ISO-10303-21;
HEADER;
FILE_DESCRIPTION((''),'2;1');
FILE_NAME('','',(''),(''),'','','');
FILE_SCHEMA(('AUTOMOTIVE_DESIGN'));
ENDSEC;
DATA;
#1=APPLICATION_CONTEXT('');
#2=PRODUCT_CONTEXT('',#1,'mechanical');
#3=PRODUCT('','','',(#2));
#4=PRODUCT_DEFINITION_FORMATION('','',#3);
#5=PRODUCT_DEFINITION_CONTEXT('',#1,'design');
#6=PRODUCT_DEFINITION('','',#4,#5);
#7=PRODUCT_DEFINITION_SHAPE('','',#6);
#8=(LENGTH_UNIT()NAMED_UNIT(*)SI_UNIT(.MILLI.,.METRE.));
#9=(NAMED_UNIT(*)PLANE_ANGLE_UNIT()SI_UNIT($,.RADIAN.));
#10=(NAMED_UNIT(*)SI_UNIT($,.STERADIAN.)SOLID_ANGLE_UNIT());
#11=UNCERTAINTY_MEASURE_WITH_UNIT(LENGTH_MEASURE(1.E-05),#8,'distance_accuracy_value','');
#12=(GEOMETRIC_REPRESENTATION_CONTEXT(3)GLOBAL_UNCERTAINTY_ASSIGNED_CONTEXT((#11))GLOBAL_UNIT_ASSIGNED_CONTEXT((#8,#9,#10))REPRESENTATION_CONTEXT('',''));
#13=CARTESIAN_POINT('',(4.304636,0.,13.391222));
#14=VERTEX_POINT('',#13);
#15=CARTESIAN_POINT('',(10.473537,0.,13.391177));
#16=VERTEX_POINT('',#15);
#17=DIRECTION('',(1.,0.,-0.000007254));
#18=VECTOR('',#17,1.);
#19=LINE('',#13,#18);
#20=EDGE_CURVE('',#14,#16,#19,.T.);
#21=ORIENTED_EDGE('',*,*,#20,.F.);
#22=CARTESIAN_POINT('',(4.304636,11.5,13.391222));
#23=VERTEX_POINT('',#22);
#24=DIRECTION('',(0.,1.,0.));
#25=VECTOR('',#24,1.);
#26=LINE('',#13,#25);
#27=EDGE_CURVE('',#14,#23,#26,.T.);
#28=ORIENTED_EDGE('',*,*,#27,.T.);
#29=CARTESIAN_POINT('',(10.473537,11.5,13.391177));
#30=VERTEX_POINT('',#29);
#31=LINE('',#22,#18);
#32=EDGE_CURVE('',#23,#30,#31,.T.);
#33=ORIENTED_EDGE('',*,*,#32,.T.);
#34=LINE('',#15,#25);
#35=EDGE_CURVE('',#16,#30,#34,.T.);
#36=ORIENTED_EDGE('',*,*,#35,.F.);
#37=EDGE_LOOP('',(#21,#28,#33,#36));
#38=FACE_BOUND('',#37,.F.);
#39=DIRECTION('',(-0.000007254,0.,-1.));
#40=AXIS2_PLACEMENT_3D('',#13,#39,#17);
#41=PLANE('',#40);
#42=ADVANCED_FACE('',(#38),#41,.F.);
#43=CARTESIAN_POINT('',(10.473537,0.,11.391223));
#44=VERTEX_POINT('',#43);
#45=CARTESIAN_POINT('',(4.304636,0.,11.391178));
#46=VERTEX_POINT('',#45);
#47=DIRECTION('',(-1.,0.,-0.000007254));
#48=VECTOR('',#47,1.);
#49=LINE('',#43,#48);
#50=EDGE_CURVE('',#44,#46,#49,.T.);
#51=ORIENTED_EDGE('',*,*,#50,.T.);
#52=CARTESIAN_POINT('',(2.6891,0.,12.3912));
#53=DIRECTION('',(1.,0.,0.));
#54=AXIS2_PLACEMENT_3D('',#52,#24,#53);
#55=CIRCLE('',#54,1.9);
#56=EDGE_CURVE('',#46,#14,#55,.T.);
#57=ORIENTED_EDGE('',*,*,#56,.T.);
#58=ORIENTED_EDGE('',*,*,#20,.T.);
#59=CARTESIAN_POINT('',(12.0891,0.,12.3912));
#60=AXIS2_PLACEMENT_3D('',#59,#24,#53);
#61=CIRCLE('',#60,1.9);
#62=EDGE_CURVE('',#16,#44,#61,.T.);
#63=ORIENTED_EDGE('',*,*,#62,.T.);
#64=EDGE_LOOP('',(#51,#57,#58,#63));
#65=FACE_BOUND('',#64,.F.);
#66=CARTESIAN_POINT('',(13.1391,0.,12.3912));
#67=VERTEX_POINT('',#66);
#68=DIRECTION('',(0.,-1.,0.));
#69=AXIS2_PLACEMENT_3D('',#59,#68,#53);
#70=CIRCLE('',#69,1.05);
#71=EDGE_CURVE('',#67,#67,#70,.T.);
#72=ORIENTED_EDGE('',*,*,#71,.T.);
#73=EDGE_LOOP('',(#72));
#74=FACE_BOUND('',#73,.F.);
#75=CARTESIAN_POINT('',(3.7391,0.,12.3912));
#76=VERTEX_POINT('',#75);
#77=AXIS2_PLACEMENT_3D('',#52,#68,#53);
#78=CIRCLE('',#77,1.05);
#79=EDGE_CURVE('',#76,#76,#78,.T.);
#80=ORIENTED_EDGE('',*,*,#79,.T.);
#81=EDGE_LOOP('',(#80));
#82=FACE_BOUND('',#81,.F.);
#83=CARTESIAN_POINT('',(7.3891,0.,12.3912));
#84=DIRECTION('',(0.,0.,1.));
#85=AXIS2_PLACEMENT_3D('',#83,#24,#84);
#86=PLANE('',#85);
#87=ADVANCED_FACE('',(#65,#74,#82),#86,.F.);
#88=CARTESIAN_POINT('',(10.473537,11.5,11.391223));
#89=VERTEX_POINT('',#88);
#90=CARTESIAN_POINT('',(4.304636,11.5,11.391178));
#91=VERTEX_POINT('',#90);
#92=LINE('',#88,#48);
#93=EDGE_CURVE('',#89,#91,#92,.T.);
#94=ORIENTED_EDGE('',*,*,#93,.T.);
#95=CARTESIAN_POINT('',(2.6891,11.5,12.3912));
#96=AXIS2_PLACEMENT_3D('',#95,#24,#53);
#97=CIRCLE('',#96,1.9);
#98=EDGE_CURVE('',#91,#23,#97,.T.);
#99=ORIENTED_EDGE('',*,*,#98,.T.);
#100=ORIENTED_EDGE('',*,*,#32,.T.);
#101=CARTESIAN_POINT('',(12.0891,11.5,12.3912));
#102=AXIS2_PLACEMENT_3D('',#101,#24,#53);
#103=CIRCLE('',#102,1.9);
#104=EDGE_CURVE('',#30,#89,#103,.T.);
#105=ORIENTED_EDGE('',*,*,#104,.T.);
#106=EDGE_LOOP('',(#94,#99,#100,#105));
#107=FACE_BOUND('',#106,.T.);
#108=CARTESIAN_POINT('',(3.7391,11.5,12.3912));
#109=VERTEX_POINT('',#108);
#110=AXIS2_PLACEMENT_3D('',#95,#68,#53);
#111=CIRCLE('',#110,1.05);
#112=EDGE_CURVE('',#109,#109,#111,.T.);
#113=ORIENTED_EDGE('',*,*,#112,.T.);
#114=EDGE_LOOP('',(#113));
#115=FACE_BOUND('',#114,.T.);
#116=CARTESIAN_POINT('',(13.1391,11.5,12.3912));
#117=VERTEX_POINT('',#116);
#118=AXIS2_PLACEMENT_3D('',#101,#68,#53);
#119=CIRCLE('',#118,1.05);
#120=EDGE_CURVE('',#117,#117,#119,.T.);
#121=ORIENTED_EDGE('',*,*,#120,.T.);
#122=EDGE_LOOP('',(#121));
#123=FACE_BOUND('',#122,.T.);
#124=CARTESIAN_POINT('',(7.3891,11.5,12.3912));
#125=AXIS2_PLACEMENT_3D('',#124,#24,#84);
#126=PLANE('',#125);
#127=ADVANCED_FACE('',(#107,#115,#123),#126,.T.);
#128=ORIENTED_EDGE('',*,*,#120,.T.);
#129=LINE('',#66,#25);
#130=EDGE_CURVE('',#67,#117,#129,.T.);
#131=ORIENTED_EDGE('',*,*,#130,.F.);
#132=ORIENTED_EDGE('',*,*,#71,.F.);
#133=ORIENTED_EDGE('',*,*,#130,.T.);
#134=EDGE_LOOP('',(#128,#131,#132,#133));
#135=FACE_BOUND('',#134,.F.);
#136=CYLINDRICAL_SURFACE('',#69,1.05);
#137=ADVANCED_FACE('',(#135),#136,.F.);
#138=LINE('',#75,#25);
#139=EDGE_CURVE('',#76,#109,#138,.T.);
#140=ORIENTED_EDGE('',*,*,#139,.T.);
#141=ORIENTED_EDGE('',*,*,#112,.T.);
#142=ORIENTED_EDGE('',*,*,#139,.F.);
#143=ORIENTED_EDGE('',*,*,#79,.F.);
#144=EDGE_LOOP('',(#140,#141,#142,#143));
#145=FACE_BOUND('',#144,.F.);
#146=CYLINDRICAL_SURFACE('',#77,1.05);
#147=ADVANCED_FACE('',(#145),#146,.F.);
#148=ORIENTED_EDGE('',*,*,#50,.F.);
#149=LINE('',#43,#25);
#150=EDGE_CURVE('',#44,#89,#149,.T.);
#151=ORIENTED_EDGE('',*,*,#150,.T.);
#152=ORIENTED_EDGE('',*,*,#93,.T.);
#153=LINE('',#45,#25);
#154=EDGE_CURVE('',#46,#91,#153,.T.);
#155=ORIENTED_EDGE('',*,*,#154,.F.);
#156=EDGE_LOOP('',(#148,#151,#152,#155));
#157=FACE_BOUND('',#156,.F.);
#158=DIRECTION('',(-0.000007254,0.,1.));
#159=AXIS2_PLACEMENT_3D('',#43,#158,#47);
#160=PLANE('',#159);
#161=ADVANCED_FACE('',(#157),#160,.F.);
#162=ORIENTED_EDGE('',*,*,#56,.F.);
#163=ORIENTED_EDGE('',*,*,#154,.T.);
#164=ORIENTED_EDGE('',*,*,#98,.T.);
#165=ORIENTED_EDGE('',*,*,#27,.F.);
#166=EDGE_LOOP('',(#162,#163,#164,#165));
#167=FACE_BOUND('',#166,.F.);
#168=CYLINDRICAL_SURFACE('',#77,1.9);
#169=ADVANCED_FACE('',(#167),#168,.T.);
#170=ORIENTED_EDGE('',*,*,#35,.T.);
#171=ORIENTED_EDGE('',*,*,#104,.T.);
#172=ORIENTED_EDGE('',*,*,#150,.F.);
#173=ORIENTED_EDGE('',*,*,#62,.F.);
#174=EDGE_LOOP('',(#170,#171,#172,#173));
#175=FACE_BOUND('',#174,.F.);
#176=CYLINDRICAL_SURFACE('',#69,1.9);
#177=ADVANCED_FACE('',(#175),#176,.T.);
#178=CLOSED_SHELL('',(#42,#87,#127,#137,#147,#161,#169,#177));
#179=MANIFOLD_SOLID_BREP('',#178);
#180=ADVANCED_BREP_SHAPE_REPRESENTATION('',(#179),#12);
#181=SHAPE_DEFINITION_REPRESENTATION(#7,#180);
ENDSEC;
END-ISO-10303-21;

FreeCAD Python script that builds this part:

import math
import FreeCAD as App
import Part
import Sketcher

doc = App.newDocument("Part")
body = doc.addObject("PartDesign::Body", "Body")

# Sketch on XZ plane
sketch1 = body.newObject("Sketcher::SketchObject", "Sketch")
sketch1.AttachmentSupport = (doc.getObject("XZ_Plane"), [""])
sketch1.MapMode = "FlatFace"
sketch1.addGeometry([
    Part.LineSegment(App.Vector(10.4735, 13.3912, 0), App.Vector(4.3046, 13.3912, 0)),  # 0
    Part.ArcOfCircle(Part.Circle(App.Vector(2.6891, 12.3912, 0), App.Vector(0, 0, 1), 1.899958), math.radians(31.757649), math.radians(328.242351)),  # 1
    Part.LineSegment(App.Vector(4.3046, 11.3912, 0), App.Vector(10.4735, 11.3912, 0)),  # 2
    Part.ArcOfCircle(Part.Circle(App.Vector(12.0891, 12.3912, 0), App.Vector(0, 0, 1), 1.900043), math.radians(-148.243939), math.radians(148.243939)),  # 3
    Part.Circle(App.Vector(2.6891, 12.3912, 0), App.Vector(0, 0, 1), 1.05),  # 4
    Part.Circle(App.Vector(12.0891, 12.3912, 0), App.Vector(0, 0, 1), 1.05),  # 5
], False)
sketch1.addConstraint([
    Sketcher.Constraint("Coincident", 0, 2, 1, 1),
    Sketcher.Constraint("Coincident", 1, 2, 2, 1),
    Sketcher.Constraint("Coincident", 2, 2, 3, 1),
    Sketcher.Constraint("Coincident", 3, 2, 0, 1),
    Sketcher.Constraint("Horizontal", 0),
    Sketcher.Constraint("Horizontal", 2),
    Sketcher.Constraint("Coincident", 4, 3, 1, 3),
    Sketcher.Constraint("Coincident", 5, 3, 3, 3),
    Sketcher.Constraint("Equal", 1, 3),
    Sketcher.Constraint("Equal", 4, 5),
    Sketcher.Constraint("Horizontal", 1, 3, 3, 3),
    Sketcher.Constraint("Vertical", 0, 2, 1, 2),
    Sketcher.Constraint("Diameter", 4, 2.1),
    Sketcher.Constraint("Radius", 1, 1.9),
    Sketcher.Constraint("DistanceY", 1, 3, 0, 2, 1.0),
    Sketcher.Constraint("DistanceX", 1, 3, 3, 3, 9.4),
    Sketcher.Constraint("DistanceX", -1, 1, 1, 3, 2.689),
    Sketcher.Constraint("DistanceY", -1, 1, 1, 3, 12.3912),
])
pad1 = body.newObject("PartDesign::Pad", "Pad")
pad1.Profile = sketch1
pad1.Length = 11.5
pad1.Reversed = True

doc.recompute()
